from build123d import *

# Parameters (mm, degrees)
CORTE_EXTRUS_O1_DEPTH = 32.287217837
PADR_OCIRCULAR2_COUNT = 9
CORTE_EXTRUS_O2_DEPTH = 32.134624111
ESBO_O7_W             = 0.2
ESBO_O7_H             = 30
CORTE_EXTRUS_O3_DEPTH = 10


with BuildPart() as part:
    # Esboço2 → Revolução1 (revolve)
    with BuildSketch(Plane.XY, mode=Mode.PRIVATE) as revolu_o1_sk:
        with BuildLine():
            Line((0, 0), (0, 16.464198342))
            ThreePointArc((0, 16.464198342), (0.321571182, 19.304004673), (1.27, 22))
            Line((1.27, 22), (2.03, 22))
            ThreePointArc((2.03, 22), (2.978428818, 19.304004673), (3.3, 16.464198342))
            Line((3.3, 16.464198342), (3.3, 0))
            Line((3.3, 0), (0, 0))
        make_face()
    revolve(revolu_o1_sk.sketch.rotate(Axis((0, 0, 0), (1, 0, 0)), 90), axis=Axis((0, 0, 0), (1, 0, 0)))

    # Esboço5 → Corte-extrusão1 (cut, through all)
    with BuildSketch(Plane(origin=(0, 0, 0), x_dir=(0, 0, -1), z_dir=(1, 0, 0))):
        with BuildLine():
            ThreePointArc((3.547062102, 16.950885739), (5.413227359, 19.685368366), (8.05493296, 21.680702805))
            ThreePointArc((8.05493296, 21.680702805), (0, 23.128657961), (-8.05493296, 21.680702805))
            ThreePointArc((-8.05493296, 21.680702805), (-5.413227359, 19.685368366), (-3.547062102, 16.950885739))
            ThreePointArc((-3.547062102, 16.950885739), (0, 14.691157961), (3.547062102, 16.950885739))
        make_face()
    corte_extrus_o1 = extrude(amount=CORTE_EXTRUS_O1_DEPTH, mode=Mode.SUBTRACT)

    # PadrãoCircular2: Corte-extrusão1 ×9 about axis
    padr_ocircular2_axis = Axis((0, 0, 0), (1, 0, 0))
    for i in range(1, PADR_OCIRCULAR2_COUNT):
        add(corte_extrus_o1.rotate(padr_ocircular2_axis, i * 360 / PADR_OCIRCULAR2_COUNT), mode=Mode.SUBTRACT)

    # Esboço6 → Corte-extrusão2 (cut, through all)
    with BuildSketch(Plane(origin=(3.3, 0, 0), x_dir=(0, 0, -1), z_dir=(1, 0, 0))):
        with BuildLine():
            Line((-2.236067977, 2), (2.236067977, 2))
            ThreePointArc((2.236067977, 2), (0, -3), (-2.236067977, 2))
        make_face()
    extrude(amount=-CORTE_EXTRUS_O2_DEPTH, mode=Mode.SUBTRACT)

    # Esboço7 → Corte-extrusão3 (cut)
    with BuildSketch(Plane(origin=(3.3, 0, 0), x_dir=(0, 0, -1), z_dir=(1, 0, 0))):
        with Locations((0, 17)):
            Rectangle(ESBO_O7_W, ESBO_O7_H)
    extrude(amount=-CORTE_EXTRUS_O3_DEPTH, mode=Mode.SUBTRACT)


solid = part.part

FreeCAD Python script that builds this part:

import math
import FreeCAD as App
import Part
import Sketcher
Q = App.Units.Quantity

doc = App.newDocument("Part")
body = doc.addObject("PartDesign::Body", "Body")

# Sketch on XY plane
sketch1 = body.newObject("Sketcher::SketchObject", "Sketch")
sketch1.AttachmentSupport = (doc.getObject("XY_Plane"), [""])
sketch1.MapMode = "FlatFace"
sketch1.addGeometry([
    Part.LineSegment(App.Vector(0, 16.464198, 0), App.Vector(0, 0, 0)),  # 0
    Part.LineSegment(App.Vector(0, 0, 0), App.Vector(3.3, 0, 0)),  # 1
    Part.LineSegment(App.Vector(3.3, 0, 0), App.Vector(3.3, 16.464198, 0)),  # 2
    Part.ArcOfCircle(Part.Circle(App.Vector(-9.4, 16.464198, 0), App.Vector(0, 0, 1), 12.7), math.radians(0), math.radians(25.841933)),  # 3
    Part.LineSegment(App.Vector(2.03, 22, 0), App.Vector(1.27, 22, 0)),  # 4
    Part.ArcOfCircle(Part.Circle(App.Vector(12.7, 16.464198, 0), App.Vector(0, 0, 1), 12.7), math.radians(154.158067), math.radians(180)),  # 5
], False)
sketch1.addConstraint([
    Sketcher.Constraint("Coincident", 0, 2, 1, 1),
    Sketcher.Constraint("Coincident", 1, 2, 2, 1),
    Sketcher.Constraint("Tangent", 2, 2, 3, 1),
    Sketcher.Constraint("Coincident", 3, 2, 4, 1),
    Sketcher.Constraint("Coincident", 4, 2, 5, 1),
    Sketcher.Constraint("Tangent", 5, 2, 0, 1),
    Sketcher.Constraint("Vertical", 0),
    Sketcher.Constraint("Horizontal", 1),
    Sketcher.Constraint("Vertical", 2),
    Sketcher.Constraint("Horizontal", 4),
    Sketcher.Constraint("Coincident", 0, 2, -1, 1),
    Sketcher.Constraint("Equal", 3, 5),
    Sketcher.Constraint("Horizontal", 3, 3, 5, 3),
    Sketcher.Constraint("Radius", 3, Q("12.7 mm")),
    Sketcher.Constraint("DistanceX", 1, 1, 1, 2, Q("3.3 mm")),
    Sketcher.Constraint("DistanceY", -1, 1, 3, 2, Q("22 mm")),
    Sketcher.Constraint("DistanceX", 4, 2, 4, 1, Q("0.76 mm")),
])
revolution = body.newObject("PartDesign::Revolution", "Revolution")
revolution.Profile = sketch1
revolution.ReferenceAxis = (sketch1, ["H_Axis"])
revolution.Angle = 360

# Sketch on YZ plane
sketch2 = body.newObject("Sketcher::SketchObject", "Sketch001")
sketch2.AttachmentSupport = (doc.getObject("YZ_Plane"), [""])
sketch2.MapMode = "FlatFace"
sketch2.addGeometry([
    Part.ArcOfCircle(Part.Circle(App.Vector(12.627501, -12.818591, 0), App.Vector(0, 0, 1), 10.23), math.radians(27.752666), math.radians(65)),
    Part.ArcOfCircle(Part.Circle(App.Vector(0, 0, 0), App.Vector(0, 0, 1), 23.128658), math.radians(-20.381313), math.radians(20.381313)),
    Part.ArcOfCircle(Part.Circle(App.Vector(12.627501, 12.818591, 0), App.Vector(0, 0, 1), 10.23), math.radians(-65), math.radians(-27.752666)),
    Part.ArcOfCircle(Part.Circle(App.Vector(18.604908, 0, 0), App.Vector(0, 0, 1), 3.91375), math.radians(115), math.radians(245)),
], False)
sketch2.addConstraint([
    Sketcher.Constraint("Coincident", 0, 1, 1, 1),
    Sketcher.Constraint("Coincident", 1, 2, 2, 2),
    Sketcher.Constraint("Tangent", 2, 1, 3, 1),
    Sketcher.Constraint("Tangent", 3, 2, 0, 2),
    Sketcher.Constraint("Coincident", 1, 3, -1, 1),
    Sketcher.Constraint("Equal", 0, 2),
    Sketcher.Constraint("Symmetric", 0, 3, 2, 3, -1),
    Sketcher.Constraint("Radius", 0, Q("10.23 mm")),
    Sketcher.Constraint("Radius", 3, Q("3.91375 mm")),
    Sketcher.Constraint("Radius", 1, Q("23.128658 mm")),
    Sketcher.Constraint("DistanceX", -1, 1, 0, 3, Q("12.627501 mm")),
    Sketcher.Constraint("DistanceX", 0, 3, 0, 1, Q("9.053202 mm")),
])
pocket1 = body.newObject("PartDesign::Pocket", "Pocket")
pocket1.Profile = sketch2
pocket1.Type = "ThroughAll"
pocket1.Reversed = True
doc.recompute()

polarpattern = body.newObject("PartDesign::PolarPattern", "PolarPattern")
polarpattern.Originals = [pocket1]
polarpattern.Axis = (doc.getObject("X_Axis"), [""])
polarpattern.Angle = 360
polarpattern.Occurrences = 9
body.Tip = polarpattern

# Sketch on YZ plane
sketch3 = body.newObject("Sketcher::SketchObject", "Sketch002")
sketch3.AttachmentSupport = (doc.getObject("YZ_Plane"), [""])
sketch3.MapMode = "FlatFace"
sketch3.AttachmentOffset = App.Placement(App.Vector(0, 0, 3.3), App.Rotation())
sketch3.addGeometry([
    Part.LineSegment(App.Vector(2, -2.236068, 0), App.Vector(2, 2.236068, 0)),
    Part.ArcOfCircle(Part.Circle(App.Vector(0, 0, 0), App.Vector(0, 0, 1), 3), math.radians(48.189685), math.radians(311.810315)),
], False)
sketch3.addConstraint([
    Sketcher.Constraint("Coincident", 0, 1, 1, 2),
    Sketcher.Constraint("Coincident", 1, 1, 0, 2),
    Sketcher.Constraint("Vertical", 0),
    Sketcher.Constraint("Coincident", 1, 3, -1, 1),
    Sketcher.Constraint("Radius", 1, Q("3 mm")),
    Sketcher.Constraint("DistanceX", -1, 1, 0, 1, Q("2 mm")),
])
pocket2 = body.newObject("PartDesign::Pocket", "Pocket001")
pocket2.Profile = sketch3
pocket2.Type = "ThroughAll"

# Sketch on YZ plane
sketch4 = body.newObject("Sketcher::SketchObject", "Sketch003")
sketch4.AttachmentSupport = (doc.getObject("YZ_Plane"), [""])
sketch4.MapMode = "FlatFace"
sketch4.AttachmentOffset = App.Placement(App.Vector(0, 0, 3.3), App.Rotation())
sketch4.addGeometry([
    Part.LineSegment(App.Vector(32, 0.1, 0), App.Vector(2, 0.1, 0)),
    Part.LineSegment(App.Vector(2, 0.1, 0), App.Vector(2, -0.1, 0)),
    Part.LineSegment(App.Vector(2, -0.1, 0), App.Vector(32, -0.1, 0)),
    Part.LineSegment(App.Vector(32, -0.1, 0), App.Vector(32, 0.1, 0)),
], False)
sketch4.addConstraint([
    Sketcher.Constraint("Coincident", 0, 2, 1, 1),
    Sketcher.Constraint("Coincident", 1, 2, 2, 1),
    Sketcher.Constraint("Coincident", 2, 2, 3, 1),
    Sketcher.Constraint("Coincident", 3, 2, 0, 1),
    Sketcher.Constraint("Horizontal", 0),
    Sketcher.Constraint("Vertical", 1),
    Sketcher.Constraint("Horizontal", 2),
    Sketcher.Constraint("Vertical", 3),
    Sketcher.Constraint("DistanceX", 0, 2, 0, 1, Q("30 mm")),
    Sketcher.Constraint("DistanceY", 1, 2, 1, 1, Q("0.2 mm")),
    Sketcher.Constraint("DistanceX", -1, 1, 0, 2, Q("2 mm")),
    Sketcher.Constraint("DistanceY", -1, 1, 0, 2, Q("0.1 mm")),
])
pocket3 = body.newObject("PartDesign::Pocket", "Pocket002")
pocket3.Profile = sketch4
pocket3.Length = 10

doc.recompute()
